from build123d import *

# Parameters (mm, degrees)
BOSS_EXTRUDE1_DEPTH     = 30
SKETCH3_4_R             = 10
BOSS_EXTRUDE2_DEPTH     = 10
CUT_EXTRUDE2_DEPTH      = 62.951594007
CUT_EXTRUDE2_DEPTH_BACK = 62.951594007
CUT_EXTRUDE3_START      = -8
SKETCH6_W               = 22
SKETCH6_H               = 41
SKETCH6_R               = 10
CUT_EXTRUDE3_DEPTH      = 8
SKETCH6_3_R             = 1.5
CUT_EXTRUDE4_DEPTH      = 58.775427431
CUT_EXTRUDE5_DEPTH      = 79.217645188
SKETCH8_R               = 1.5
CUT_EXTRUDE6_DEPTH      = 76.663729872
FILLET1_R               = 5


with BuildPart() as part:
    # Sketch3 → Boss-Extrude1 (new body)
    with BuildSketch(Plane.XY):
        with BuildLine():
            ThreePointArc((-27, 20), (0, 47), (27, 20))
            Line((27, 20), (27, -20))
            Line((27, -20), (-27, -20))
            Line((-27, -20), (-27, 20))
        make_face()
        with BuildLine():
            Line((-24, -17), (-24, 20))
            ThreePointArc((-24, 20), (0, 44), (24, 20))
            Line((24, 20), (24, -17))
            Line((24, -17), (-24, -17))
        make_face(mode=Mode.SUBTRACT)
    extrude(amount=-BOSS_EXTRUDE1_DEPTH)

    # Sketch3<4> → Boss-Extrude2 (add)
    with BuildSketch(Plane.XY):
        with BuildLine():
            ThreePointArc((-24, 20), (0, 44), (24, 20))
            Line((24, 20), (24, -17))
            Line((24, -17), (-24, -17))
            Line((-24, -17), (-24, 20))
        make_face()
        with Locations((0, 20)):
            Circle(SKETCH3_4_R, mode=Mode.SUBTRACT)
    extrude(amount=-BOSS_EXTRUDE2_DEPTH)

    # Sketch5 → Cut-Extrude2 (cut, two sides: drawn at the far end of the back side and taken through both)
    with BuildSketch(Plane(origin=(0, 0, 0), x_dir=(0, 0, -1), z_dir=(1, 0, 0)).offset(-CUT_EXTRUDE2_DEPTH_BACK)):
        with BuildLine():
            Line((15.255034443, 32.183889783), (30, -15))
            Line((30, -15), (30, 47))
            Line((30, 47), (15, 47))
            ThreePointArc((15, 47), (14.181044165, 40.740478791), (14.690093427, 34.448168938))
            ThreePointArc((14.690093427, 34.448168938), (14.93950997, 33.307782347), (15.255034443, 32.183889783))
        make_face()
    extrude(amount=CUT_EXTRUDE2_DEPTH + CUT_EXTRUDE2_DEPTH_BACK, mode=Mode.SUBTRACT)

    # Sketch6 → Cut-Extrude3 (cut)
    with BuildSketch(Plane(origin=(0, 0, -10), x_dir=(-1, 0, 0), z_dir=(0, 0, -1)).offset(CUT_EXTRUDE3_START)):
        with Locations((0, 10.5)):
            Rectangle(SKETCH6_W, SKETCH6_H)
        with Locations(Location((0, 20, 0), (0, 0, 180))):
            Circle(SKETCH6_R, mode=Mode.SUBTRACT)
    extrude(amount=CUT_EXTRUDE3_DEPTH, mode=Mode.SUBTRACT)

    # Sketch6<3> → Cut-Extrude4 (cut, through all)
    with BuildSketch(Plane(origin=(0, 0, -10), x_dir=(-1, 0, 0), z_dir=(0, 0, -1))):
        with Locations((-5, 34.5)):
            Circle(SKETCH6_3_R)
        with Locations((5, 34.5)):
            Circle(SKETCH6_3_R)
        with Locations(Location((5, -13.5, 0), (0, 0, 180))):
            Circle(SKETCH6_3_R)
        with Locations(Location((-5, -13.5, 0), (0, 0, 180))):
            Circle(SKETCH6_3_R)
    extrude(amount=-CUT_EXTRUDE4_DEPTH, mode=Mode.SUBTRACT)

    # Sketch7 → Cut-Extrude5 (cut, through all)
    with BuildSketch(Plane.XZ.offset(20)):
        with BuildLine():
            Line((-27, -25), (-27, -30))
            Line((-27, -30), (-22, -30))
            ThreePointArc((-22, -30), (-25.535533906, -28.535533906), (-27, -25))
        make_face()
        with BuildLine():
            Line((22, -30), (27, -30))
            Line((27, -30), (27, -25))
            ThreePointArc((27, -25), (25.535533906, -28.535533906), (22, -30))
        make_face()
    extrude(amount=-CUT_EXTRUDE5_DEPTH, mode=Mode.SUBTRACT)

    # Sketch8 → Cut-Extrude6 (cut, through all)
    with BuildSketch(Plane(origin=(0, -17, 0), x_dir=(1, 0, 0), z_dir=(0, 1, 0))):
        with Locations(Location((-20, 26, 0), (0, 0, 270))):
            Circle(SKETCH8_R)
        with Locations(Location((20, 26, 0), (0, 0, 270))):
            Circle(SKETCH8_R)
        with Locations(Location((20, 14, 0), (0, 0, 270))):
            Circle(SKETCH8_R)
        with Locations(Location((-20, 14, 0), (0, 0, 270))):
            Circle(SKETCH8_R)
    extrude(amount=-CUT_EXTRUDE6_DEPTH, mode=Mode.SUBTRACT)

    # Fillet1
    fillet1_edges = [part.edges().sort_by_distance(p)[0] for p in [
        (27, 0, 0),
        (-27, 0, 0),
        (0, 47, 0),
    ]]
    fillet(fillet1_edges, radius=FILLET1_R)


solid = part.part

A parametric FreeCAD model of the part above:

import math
import FreeCAD as App
import Part
import Sketcher


def edges_at(feature, points):
    """Names of the edges that pass closest to the given points."""
    edges = feature.Shape.Edges
    near = lambda p: min(range(len(edges)), key=lambda i: edges[i].distToShape(Part.Vertex(*p))[0])
    return sorted({f"Edge{near(p) + 1}" for p in points})


def add_polygon(sketch, points):
    """Adds a closed chain of lines whose ends are joined by coincident constraints."""
    first, n = sketch.GeometryCount, len(points)
    for a, b in zip(points, points[1:] + points[:1]):
        sketch.addGeometry(Part.LineSegment(App.Vector(*a, 0), App.Vector(*b, 0)), False)
    for i in range(n):
        sketch.addConstraint(Sketcher.Constraint("Coincident", first + i, 2, first + (i + 1) % n, 1))

doc = App.newDocument("Part")
body = doc.addObject("PartDesign::Body", "Body")

sketch1 = body.newObject("Sketcher::SketchObject", "Sketch")
sketch1.AttachmentSupport = (doc.getObject("XY_Plane"), [""])
sketch1.MapMode = "FlatFace"
sketch1.addGeometry([
    Part.ArcOfCircle(Part.Circle(App.Vector(0, 20, 0), App.Vector(0, 0, 1), 27), math.radians(0), math.radians(180)),
    Part.LineSegment(App.Vector(-27, 20, 0), App.Vector(-27, -20, 0)),
    Part.LineSegment(App.Vector(-27, -20, 0), App.Vector(27, -20, 0)),
    Part.LineSegment(App.Vector(27, -20, 0), App.Vector(27, 20, 0)),
    Part.LineSegment(App.Vector(-24, -17, 0), App.Vector(-24, 20, 0)),
    Part.ArcOfCircle(Part.Circle(App.Vector(0, 20, 0), App.Vector(0, 0, 1), 24), math.radians(0), math.radians(180)),
    Part.LineSegment(App.Vector(24, 20, 0), App.Vector(24, -17, 0)),
    Part.LineSegment(App.Vector(24, -17, 0), App.Vector(-24, -17, 0)),
], False)
sketch1.addConstraint([
    Sketcher.Constraint("Tangent", 0, 2, 1, 1),
    Sketcher.Constraint("Coincident", 1, 2, 2, 1),
    Sketcher.Constraint("Coincident", 2, 2, 3, 1),
    Sketcher.Constraint("Tangent", 3, 2, 0, 1),
    Sketcher.Constraint("Tangent", 4, 2, 5, 2),
    Sketcher.Constraint("Tangent", 5, 1, 6, 1),
    Sketcher.Constraint("Coincident", 6, 2, 7, 1),
    Sketcher.Constraint("Coincident", 7, 2, 4, 1),
    Sketcher.Constraint("Vertical", 1),
    Sketcher.Constraint("Horizontal", 2),
    Sketcher.Constraint("Vertical", 3),
    Sketcher.Constraint("Vertical", 4),
    Sketcher.Constraint("Vertical", 6),
    Sketcher.Constraint("Horizontal", 7),
    Sketcher.Constraint("Coincident", 5, 3, 0, 3),
    Sketcher.Constraint("Symmetric", 0, 2, 2, 2, -1, 1),
    Sketcher.Constraint("Radius", 0, 27.0),
    Sketcher.Constraint("Radius", 5, 24.0),
    Sketcher.Constraint("DistanceY", 1, 2, 1, 1, 40.0),
    Sketcher.Constraint("DistanceY", 4, 1, 4, 2, 37.0),
])
pad1 = body.newObject("PartDesign::Pad", "Pad")
pad1.Profile = sketch1
pad1.Length = 30
pad1.Reversed = True

sketch2 = body.newObject("Sketcher::SketchObject", "Sketch001")
sketch2.AttachmentSupport = (doc.getObject("XY_Plane"), [""])
sketch2.MapMode = "FlatFace"
sketch2.addGeometry([
    Part.ArcOfCircle(Part.Circle(App.Vector(0, 20, 0), App.Vector(0, 0, 1), 24), math.radians(0), math.radians(180)),
    Part.LineSegment(App.Vector(-24, 20, 0), App.Vector(-24, -17, 0)),
    Part.LineSegment(App.Vector(-24, -17, 0), App.Vector(24, -17, 0)),
    Part.LineSegment(App.Vector(24, -17, 0), App.Vector(24, 20, 0)),
    Part.Circle(App.Vector(0, 20, 0), App.Vector(0, 0, 1), 10),
], False)
sketch2.addConstraint([
    Sketcher.Constraint("Tangent", 0, 2, 1, 1),
    Sketcher.Constraint("Coincident", 1, 2, 2, 1),
    Sketcher.Constraint("Coincident", 2, 2, 3, 1),
    Sketcher.Constraint("Tangent", 3, 2, 0, 1),
    Sketcher.Constraint("Vertical", 1),
    Sketcher.Constraint("Horizontal", 2),
    Sketcher.Constraint("Vertical", 3),
    Sketcher.Constraint("Coincident", 4, 3, 0, 3),
    Sketcher.Constraint("PointOnObject", 0, 3, -2),
    Sketcher.Constraint("Diameter", 4, 20.0),
    Sketcher.Constraint("Radius", 0, 24.0),
    Sketcher.Constraint("DistanceY", 1, 2, 1, 1, 37.0),
    Sketcher.Constraint("DistanceY", -1, 1, 0, 3, 20.0),
])
pad2 = body.newObject("PartDesign::Pad", "Pad001")
pad2.Profile = sketch2
pad2.Length = 10
pad2.Reversed = True

sketch3 = body.newObject("Sketcher::SketchObject", "Sketch002")
sketch3.AttachmentSupport = (doc.getObject("YZ_Plane"), [""])
sketch3.MapMode = "FlatFace"
sketch3.addGeometry([
    Part.LineSegment(App.Vector(32.2, -15.3, 0), App.Vector(-15, -30, 0)),
    Part.LineSegment(App.Vector(-15, -30, 0), App.Vector(47, -30, 0)),
    Part.LineSegment(App.Vector(47, -30, 0), App.Vector(47, -15, 0)),
    Part.ArcOfCircle(Part.Circle(App.Vector(40, -44.2, 0), App.Vector(0, 0, 1), 30), math.radians(77), math.radians(101)),
    Part.ArcOfCircle(Part.Circle(App.Vector(38.1, -34.3, 0), App.Vector(0, 0, 1), 20), math.radians(100.66), math.radians(107.35)),
], False)
sketch3.addConstraint([
    Sketcher.Constraint("Coincident", 0, 2, 1, 1),
    Sketcher.Constraint("Coincident", 1, 2, 2, 1),
    Sketcher.Constraint("Coincident", 2, 2, 3, 1),
    Sketcher.Constraint("Tangent", 3, 2, 4, 1),
    Sketcher.Constraint("Tangent", 4, 2, 0, 1),
    Sketcher.Constraint("Horizontal", 1),
    Sketcher.Constraint("Vertical", 2),
    Sketcher.Constraint("Radius", 3, 30.0),
    Sketcher.Constraint("Radius", 4, 20.0),
    Sketcher.Constraint("DistanceX", 1, 1, 1, 2, 62.0),
    Sketcher.Constraint("DistanceY", 2, 1, 2, 2, 15.0),
    Sketcher.Constraint("DistanceX", -1, 1, 3, 3, 40.0),
    Sketcher.Constraint("DistanceX", 0, 2, -1, 1, 15.0),
    Sketcher.Constraint("DistanceY", 0, 2, -1, 1, 30.0),
    Sketcher.Constraint("DistanceX", -1, 1, 4, 3, 38.14939),
])
pocket1 = body.newObject("PartDesign::Pocket", "Pocket")
pocket1.Profile = sketch3
pocket1.Type = "ThroughAll"
pocket1.Midplane = True

sketch4 = body.newObject("Sketcher::SketchObject", "Sketch003")
sketch4.AttachmentSupport = (doc.getObject("XY_Plane"), [""])
sketch4.MapMode = "FlatFace"
sketch4.AttachmentOffset = App.Placement(App.Vector(0, 0, -2), App.Rotation())
add_polygon(sketch4, [(11, 31), (11, -10), (-11, -10), (-11, 31)])
sketch4.addGeometry(Part.Circle(App.Vector(0, 20, 0), App.Vector(0, 0, 1), 10), False)
sketch4.addConstraint([
    Sketcher.Constraint("Vertical", 0),
    Sketcher.Constraint("Horizontal", 1),
    Sketcher.Constraint("Vertical", 2),
    Sketcher.Constraint("Horizontal", 3),
    Sketcher.Constraint("PointOnObject", 4, 3, -2),
    Sketcher.Constraint("Diameter", 4, 20.0),
    Sketcher.Constraint("DistanceX", 1, 2, 1, 1, 22.0),
    Sketcher.Constraint("DistanceY", 0, 2, 0, 1, 41.0),
    Sketcher.Constraint("DistanceY", -1, 1, 4, 3, 20.0),
    Sketcher.Constraint("DistanceX", -1, 1, 0, 2, 11.0),
    Sketcher.Constraint("DistanceY", 0, 2, -1, 1, 10.0),
])
pocket2 = body.newObject("PartDesign::Pocket", "Pocket001")
pocket2.Profile = sketch4
pocket2.Length = 8

sketch5 = body.newObject("Sketcher::SketchObject", "Sketch004")
sketch5.AttachmentSupport = (doc.getObject("XY_Plane"), [""])
sketch5.MapMode = "FlatFace"
sketch5.AttachmentOffset = App.Placement(App.Vector(0, 0, -10), App.Rotation())
sketch5.addGeometry([
    Part.Circle(App.Vector(5, 34.5, 0), App.Vector(0, 0, 1), 1.5),
    Part.Circle(App.Vector(-5, 34.5, 0), App.Vector(0, 0, 1), 1.5),
    Part.Circle(App.Vector(-5, -13.5, 0), App.Vector(0, 0, 1), 1.5),
    Part.Circle(App.Vector(5, -13.5, 0), App.Vector(0, 0, 1), 1.5),
], False)
sketch5.addConstraint([
    Sketcher.Constraint("Equal", 0, 1),
    Sketcher.Constraint("Equal", 1, 2),
    Sketcher.Constraint("Equal", 2, 3),
    Sketcher.Constraint("Symmetric", 0, 3, 1, 3, -2),
    Sketcher.Constraint("Symmetric", 2, 3, 3, 3, -2),
    Sketcher.Constraint("Vertical", 1, 3, 2, 3),
    Sketcher.Constraint("Diameter", 0, 3.0),
    Sketcher.Constraint("DistanceX", -1, 1, 0, 3, 5.0),
    Sketcher.Constraint("DistanceY", 2, 3, 1, 3, 48.0),
    Sketcher.Constraint("DistanceY", -1, 1, 0, 3, 34.5),
])
pocket3 = body.newObject("PartDesign::Pocket", "Pocket002")
pocket3.Profile = sketch5
pocket3.Type = "ThroughAll"
pocket3.Reversed = True

sketch6 = body.newObject("Sketcher::SketchObject", "Sketch005")
sketch6.AttachmentSupport = (doc.getObject("XZ_Plane"), [""])
sketch6.MapMode = "FlatFace"
sketch6.AttachmentOffset = App.Placement(App.Vector(0, 0, 20), App.Rotation())
sketch6.addGeometry([
    Part.LineSegment(App.Vector(-27, -25, 0), App.Vector(-27, -30, 0)),
    Part.LineSegment(App.Vector(-27, -30, 0), App.Vector(-22, -30, 0)),
    Part.ArcOfCircle(Part.Circle(App.Vector(-22, -25, 0), App.Vector(0, 0, 1), 5), math.radians(180), math.radians(270)),
    Part.LineSegment(App.Vector(22, -30, 0), App.Vector(27, -30, 0)),
    Part.LineSegment(App.Vector(27, -30, 0), App.Vector(27, -25, 0)),
    Part.ArcOfCircle(Part.Circle(App.Vector(22, -25, 0), App.Vector(0, 0, 1), 5), math.radians(-90), math.radians(0)),
], False)
sketch6.addConstraint([
    Sketcher.Constraint("Coincident", 0, 2, 1, 1),
    Sketcher.Constraint("Tangent", 1, 2, 2, 2),
    Sketcher.Constraint("Tangent", 2, 1, 0, 1),
    Sketcher.Constraint("Coincident", 3, 2, 4, 1),
    Sketcher.Constraint("Tangent", 4, 2, 5, 2),
    Sketcher.Constraint("Tangent", 5, 1, 3, 1),
    Sketcher.Constraint("Vertical", 0),
    Sketcher.Constraint("Horizontal", 1),
    Sketcher.Constraint("Horizontal", 3),
    Sketcher.Constraint("Vertical", 4),
    Sketcher.Constraint("Equal", 2, 5),
    Sketcher.Constraint("Symmetric", 2, 3, 5, 3, -2),
    Sketcher.Constraint("Radius", 2, 5.0),
    Sketcher.Constraint("DistanceX", 2, 3, -1, 1, 22.0),
    Sketcher.Constraint("DistanceY", 2, 3, -1, 1, 25.0),
])
pocket4 = body.newObject("PartDesign::Pocket", "Pocket003")
pocket4.Profile = sketch6
pocket4.Type = "ThroughAll"

sketch7 = body.newObject("Sketcher::SketchObject", "Sketch006")
sketch7.AttachmentSupport = (doc.getObject("XZ_Plane"), [""])
sketch7.MapMode = "FlatFace"
sketch7.AttachmentOffset = App.Placement(App.Vector(0, 0, 17), App.Rotation())
sketch7.addGeometry([
    Part.Circle(App.Vector(-20, -26, 0), App.Vector(0, 0, 1), 1.5),
    Part.Circle(App.Vector(20, -26, 0), App.Vector(0, 0, 1), 1.5),
    Part.Circle(App.Vector(20, -14, 0), App.Vector(0, 0, 1), 1.5),
    Part.Circle(App.Vector(-20, -14, 0), App.Vector(0, 0, 1), 1.5),
], False)
sketch7.addConstraint([
    Sketcher.Constraint("Equal", 0, 1),
    Sketcher.Constraint("Equal", 1, 2),
    Sketcher.Constraint("Equal", 2, 3),
    Sketcher.Constraint("Symmetric", 0, 3, 1, 3, -2),
    Sketcher.Constraint("Symmetric", 2, 3, 3, 3, -2),
    Sketcher.Constraint("Vertical", 1, 3, 2, 3),
    Sketcher.Constraint("Diameter", 0, 3.0),
    Sketcher.Constraint("DistanceX", 0, 3, -1, 1, 20.0),
    Sketcher.Constraint("DistanceY", 0, 3, -1, 1, 26.0),
    Sketcher.Constraint("DistanceY", 2, 3, -1, 1, 14.0),
])
pocket5 = body.newObject("PartDesign::Pocket", "Pocket004")
pocket5.Profile = sketch7
pocket5.Type = "ThroughAll"
pocket5.Reversed = True
doc.recompute()

fillet = body.newObject("PartDesign::Fillet", "Fillet")
fillet.Base = (pocket5, edges_at(pocket5, [(27, 0, 0), (-27, 0, 0), (0, 47, 0)]))
fillet.Radius = 5

doc.recompute()
